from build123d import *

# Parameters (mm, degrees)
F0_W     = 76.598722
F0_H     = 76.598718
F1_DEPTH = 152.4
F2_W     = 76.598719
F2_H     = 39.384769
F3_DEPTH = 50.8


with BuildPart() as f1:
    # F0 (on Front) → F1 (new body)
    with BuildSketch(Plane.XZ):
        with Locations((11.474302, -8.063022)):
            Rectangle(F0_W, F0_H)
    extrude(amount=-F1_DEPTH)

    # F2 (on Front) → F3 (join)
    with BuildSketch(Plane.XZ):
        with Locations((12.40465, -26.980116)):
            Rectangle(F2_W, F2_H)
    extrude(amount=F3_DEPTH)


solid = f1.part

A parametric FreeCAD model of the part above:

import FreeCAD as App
import Part
import Sketcher
Q = App.Units.Quantity


def add_polygon(sketch, points):
    """Adds a closed chain of lines whose ends are joined by coincident constraints."""
    first, n = sketch.GeometryCount, len(points)
    for a, b in zip(points, points[1:] + points[:1]):
        sketch.addGeometry(Part.LineSegment(App.Vector(*a, 0), App.Vector(*b, 0)), False)
    for i in range(n):
        sketch.addConstraint(Sketcher.Constraint("Coincident", first + i, 2, first + (i + 1) % n, 1))

doc = App.newDocument("Part")
body = doc.addObject("PartDesign::Body", "Body")

sketch1 = body.newObject("Sketcher::SketchObject", "Sketch")
sketch1.AttachmentSupport = (doc.getObject("XZ_Plane"), [""])
sketch1.MapMode = "FlatFace"
add_polygon(sketch1, [(-27, 30), (-27, -46), (50, -46), (50, 30)])
sketch1.addConstraint([
    Sketcher.Constraint("Vertical", 0),
    Sketcher.Constraint("Horizontal", 1),
    Sketcher.Constraint("Vertical", 2),
    Sketcher.Constraint("Horizontal", 3),
    Sketcher.Constraint("DistanceX", 1, 1, 1, 2, 76.598722),
    Sketcher.Constraint("DistanceY", 0, 2, 0, 1, 76.598718),
    Sketcher.Constraint("DistanceX", 0, 2, -1, 1, 26.825059),
    Sketcher.Constraint("DistanceY", 0, 2, -1, 1, 46.362381),
])
pad1 = body.newObject("PartDesign::Pad", "Pad")
pad1.Profile = sketch1
pad1.Length = Q("6 in")
pad1.Reversed = True

sketch2 = body.newObject("Sketcher::SketchObject", "Sketch001")
sketch2.AttachmentSupport = (doc.getObject("XZ_Plane"), [""])
sketch2.MapMode = "FlatFace"
add_polygon(sketch2, [(-26, -7), (-26, -47), (51, -47), (51, -7)])
sketch2.addConstraint([
    Sketcher.Constraint("Vertical", 0),
    Sketcher.Constraint("Horizontal", 1),
    Sketcher.Constraint("Vertical", 2),
    Sketcher.Constraint("Horizontal", 3),
    Sketcher.Constraint("DistanceY", 0, 2, -1, 1, Q("1.8375 in")),
    Sketcher.Constraint("DistanceX", 1, 1, 1, 2, 76.598719),
    Sketcher.Constraint("DistanceY", 0, 2, 0, 1, 39.384769),
    Sketcher.Constraint("DistanceX", 0, 2, -1, 1, 25.89471),
])
pad2 = body.newObject("PartDesign::Pad", "Pad001")
pad2.Profile = sketch2
pad2.Length = Q("2 in")

doc.recompute()
